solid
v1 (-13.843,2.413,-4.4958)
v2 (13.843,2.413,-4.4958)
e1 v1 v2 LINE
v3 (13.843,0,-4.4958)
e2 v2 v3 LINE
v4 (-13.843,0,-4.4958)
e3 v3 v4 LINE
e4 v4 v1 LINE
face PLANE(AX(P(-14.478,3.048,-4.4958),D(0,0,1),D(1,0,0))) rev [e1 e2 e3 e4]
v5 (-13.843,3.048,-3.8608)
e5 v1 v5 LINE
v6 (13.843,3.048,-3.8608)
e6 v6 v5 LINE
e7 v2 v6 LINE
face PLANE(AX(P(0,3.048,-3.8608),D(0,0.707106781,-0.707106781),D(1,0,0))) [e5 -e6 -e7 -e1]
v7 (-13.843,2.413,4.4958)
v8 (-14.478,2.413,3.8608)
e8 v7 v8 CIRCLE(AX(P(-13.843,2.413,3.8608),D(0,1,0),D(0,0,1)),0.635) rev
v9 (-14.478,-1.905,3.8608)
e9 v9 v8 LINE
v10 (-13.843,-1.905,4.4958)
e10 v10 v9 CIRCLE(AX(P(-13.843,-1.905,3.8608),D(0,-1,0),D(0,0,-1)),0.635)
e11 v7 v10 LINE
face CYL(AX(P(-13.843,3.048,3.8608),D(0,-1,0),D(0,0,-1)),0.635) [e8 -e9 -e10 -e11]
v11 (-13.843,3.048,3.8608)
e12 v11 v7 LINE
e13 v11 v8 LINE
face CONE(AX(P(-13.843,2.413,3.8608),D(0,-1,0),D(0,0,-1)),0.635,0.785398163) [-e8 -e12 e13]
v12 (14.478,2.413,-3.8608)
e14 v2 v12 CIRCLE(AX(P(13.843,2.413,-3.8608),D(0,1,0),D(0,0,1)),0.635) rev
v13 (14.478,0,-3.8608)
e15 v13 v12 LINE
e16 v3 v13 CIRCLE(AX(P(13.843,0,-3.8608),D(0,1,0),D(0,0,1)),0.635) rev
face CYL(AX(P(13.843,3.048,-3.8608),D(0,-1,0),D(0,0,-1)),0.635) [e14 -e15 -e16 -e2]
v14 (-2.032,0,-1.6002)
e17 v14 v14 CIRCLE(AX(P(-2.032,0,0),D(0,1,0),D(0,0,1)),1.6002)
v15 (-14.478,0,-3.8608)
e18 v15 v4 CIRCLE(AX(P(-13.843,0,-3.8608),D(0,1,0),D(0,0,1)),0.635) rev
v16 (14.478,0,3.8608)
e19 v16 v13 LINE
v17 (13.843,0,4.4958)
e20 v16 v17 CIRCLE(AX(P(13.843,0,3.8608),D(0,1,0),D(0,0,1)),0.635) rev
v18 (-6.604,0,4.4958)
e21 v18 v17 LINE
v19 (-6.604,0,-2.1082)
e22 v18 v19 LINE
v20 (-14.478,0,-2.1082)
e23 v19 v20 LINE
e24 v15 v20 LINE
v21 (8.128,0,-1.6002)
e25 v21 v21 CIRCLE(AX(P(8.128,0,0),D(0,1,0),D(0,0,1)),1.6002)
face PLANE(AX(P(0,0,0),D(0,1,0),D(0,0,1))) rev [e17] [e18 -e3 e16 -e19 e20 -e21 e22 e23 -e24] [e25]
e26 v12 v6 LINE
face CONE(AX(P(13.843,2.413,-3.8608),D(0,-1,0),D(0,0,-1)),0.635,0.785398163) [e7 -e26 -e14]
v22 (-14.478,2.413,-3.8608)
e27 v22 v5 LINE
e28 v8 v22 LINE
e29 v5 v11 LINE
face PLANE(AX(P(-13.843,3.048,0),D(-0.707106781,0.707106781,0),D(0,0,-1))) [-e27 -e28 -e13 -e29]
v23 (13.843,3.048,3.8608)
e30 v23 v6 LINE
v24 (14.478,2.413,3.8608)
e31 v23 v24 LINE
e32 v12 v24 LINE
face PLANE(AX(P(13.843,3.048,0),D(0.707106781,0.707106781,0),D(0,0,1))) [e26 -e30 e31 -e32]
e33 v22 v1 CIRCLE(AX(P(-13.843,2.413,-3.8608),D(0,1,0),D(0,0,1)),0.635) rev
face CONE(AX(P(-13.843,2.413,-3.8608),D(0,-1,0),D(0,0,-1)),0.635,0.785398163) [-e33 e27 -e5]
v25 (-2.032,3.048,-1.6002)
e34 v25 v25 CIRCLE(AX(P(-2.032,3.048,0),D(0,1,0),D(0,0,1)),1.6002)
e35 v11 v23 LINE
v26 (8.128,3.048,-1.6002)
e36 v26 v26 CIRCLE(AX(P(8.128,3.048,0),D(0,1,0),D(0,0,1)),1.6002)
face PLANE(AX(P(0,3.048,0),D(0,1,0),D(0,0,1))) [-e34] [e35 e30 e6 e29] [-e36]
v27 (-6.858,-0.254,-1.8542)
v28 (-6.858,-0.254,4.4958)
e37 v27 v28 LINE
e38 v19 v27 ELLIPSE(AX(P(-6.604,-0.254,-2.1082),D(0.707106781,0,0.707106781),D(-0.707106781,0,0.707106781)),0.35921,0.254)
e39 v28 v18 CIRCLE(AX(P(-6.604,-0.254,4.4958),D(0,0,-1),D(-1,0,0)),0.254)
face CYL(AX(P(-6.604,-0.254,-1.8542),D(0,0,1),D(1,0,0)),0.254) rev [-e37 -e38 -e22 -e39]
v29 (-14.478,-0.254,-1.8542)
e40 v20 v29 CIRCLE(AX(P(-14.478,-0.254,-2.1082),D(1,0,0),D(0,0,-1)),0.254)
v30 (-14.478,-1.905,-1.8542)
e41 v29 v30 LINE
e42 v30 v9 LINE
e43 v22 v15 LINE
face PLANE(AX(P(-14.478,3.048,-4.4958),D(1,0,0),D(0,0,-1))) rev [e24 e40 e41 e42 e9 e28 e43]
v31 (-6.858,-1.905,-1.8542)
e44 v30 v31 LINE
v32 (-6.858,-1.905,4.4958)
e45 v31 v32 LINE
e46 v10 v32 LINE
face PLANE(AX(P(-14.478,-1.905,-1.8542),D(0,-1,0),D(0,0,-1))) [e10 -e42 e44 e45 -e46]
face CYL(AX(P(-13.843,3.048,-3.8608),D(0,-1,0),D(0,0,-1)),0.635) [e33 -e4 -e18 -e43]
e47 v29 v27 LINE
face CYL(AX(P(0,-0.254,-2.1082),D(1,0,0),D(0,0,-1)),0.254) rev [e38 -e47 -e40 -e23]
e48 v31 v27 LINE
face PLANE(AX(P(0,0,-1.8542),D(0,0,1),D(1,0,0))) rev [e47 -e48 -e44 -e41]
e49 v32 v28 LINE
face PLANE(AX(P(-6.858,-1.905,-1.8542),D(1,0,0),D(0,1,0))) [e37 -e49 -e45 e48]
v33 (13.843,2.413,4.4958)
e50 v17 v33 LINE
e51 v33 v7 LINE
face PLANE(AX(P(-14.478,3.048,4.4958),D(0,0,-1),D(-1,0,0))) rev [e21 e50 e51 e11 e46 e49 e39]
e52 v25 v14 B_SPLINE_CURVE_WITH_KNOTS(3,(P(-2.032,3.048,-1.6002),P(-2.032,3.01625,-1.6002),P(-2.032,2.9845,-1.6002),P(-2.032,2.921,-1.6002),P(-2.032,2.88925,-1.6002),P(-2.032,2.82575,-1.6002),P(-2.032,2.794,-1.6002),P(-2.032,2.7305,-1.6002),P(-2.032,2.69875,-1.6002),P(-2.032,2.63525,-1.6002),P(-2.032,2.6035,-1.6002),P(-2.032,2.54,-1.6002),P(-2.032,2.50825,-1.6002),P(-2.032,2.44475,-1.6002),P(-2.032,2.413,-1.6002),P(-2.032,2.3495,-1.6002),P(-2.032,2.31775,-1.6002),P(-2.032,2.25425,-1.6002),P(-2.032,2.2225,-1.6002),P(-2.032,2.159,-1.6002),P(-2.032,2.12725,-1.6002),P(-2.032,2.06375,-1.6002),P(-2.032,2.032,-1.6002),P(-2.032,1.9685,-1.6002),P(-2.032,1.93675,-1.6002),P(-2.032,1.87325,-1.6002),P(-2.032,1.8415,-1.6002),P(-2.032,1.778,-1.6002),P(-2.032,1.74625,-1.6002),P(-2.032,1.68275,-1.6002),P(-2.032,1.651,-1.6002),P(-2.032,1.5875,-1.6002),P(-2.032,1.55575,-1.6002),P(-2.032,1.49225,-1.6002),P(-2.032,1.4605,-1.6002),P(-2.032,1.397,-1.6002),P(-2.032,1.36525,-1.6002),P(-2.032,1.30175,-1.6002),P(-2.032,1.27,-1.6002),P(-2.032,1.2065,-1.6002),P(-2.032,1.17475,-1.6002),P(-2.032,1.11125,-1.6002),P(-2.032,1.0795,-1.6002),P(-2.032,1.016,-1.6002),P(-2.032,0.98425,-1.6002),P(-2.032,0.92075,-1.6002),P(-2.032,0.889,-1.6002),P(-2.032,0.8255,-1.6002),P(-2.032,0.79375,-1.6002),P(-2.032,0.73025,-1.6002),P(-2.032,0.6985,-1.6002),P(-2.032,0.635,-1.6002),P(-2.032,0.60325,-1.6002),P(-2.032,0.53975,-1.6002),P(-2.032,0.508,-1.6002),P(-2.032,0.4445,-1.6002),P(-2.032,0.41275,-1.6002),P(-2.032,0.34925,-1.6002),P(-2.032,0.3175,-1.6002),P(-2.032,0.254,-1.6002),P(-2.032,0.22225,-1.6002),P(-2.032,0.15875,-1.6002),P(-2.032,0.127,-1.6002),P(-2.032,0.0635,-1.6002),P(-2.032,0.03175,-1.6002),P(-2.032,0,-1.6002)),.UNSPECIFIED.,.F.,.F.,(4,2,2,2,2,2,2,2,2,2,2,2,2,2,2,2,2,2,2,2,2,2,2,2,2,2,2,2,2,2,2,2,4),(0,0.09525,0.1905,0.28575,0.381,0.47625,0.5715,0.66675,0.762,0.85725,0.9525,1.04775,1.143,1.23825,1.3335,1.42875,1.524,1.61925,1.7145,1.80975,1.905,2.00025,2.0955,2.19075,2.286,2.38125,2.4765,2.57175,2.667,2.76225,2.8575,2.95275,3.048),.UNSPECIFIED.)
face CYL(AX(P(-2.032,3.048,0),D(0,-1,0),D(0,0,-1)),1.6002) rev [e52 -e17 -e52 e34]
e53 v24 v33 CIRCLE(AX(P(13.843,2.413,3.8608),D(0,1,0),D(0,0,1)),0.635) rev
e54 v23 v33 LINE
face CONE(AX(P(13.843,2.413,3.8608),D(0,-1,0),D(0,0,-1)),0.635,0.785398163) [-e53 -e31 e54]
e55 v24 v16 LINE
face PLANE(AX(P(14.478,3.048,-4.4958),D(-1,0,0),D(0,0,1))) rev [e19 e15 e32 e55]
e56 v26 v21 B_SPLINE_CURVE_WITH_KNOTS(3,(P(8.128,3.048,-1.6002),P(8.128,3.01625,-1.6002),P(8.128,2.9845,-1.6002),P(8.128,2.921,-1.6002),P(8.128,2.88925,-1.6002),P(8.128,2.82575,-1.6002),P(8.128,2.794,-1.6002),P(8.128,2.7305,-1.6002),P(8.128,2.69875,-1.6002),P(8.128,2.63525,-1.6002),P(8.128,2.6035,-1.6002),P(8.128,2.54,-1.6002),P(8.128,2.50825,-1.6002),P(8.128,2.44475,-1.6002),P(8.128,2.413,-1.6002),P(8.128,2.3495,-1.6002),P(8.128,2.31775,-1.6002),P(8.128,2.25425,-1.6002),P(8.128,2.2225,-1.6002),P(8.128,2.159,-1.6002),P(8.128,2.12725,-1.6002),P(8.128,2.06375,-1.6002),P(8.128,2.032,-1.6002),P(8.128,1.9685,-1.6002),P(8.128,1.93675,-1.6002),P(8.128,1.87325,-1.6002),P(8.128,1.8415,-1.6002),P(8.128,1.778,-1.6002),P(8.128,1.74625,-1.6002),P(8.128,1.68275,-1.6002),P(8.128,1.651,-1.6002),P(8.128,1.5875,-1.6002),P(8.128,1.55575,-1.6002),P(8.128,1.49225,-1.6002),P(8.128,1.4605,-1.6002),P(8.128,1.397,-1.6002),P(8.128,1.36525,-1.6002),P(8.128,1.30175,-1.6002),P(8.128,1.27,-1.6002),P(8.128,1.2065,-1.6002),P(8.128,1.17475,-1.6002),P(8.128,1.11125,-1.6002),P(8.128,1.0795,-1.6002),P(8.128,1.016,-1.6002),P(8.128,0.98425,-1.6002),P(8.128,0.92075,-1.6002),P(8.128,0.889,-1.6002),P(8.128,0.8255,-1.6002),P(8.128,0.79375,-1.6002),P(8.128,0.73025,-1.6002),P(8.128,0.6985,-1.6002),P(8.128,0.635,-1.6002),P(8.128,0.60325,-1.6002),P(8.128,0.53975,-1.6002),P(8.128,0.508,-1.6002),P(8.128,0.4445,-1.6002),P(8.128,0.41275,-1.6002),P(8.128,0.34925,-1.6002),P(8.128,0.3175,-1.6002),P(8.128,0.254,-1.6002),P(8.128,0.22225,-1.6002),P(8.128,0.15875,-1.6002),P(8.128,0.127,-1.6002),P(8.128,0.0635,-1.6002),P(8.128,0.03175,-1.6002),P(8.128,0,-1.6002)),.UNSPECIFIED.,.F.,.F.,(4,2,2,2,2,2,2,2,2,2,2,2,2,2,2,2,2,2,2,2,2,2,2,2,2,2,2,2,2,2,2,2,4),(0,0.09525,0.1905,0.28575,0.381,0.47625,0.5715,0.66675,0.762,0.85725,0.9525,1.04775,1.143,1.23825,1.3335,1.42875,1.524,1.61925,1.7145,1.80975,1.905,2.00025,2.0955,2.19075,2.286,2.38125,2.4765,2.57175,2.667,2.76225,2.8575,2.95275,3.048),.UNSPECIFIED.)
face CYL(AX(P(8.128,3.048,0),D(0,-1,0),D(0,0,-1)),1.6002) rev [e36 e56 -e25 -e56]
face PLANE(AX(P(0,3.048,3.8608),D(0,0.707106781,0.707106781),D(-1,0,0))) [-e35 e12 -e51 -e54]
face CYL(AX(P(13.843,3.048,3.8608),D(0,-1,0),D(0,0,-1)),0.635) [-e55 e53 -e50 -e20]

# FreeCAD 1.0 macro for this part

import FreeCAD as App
import Part
import Sketcher
from FreeCAD import Vector
Q = App.Units.Quantity


def edges_at(feature, points):
    """Names of the edges that pass closest to the given points."""
    edges = feature.Shape.Edges
    near = lambda p: min(range(len(edges)), key=lambda i: edges[i].distToShape(Part.Vertex(*p))[0])
    return sorted({f"Edge{near(p) + 1}" for p in points})

doc = App.newDocument("Part")
params = doc.addObject("Spreadsheet::Sheet", "Params")
for row, (alias, value) in enumerate([
    ("sketch1_diameter", "0.126 in"),
    ("sketch1_width", "1.14 in"),
    ("sketch1_height", "0.354 in"),
    ("pad1_length", "0.12 in"),
    ("sketch2_width", "0.3 in"),
    ("sketch2_height", "0.075 in"),
    ("pad2_length", "0.25 in"),
    ("fillet_radius", "0.01 in"),
    ("fillet2_radius", "0.025 in"),
    ("chamfer_size", "0.025 in"),
], start=1):
    params.set(f"A{row}", alias)
    params.set(f"B{row}", "=" + value)
    params.setAlias(f"B{row}", alias)

body = doc.addObject("PartDesign::Body", "Body")

# Sketch on XZ plane
sketch1 = doc.addObject("Sketcher::SketchObject", "Sketch")
body.addObject(sketch1)
sketch1.AttachmentSupport = (doc.XZ_Plane, [""])
sketch1.MapMode = "FlatFace"
sketch1.addGeometry(Part.LineSegment(Vector(-14.5, -4.5, 0), Vector(-14.5, 4.5, 0)), False)
sketch1.addGeometry(Part.LineSegment(Vector(-14.5, 4.5, 0), Vector(14.5, 4.5, 0)), False)
sketch1.addGeometry(Part.LineSegment(Vector(14.5, 4.5, 0), Vector(14.5, -4.5, 0)), False)
sketch1.addGeometry(Part.LineSegment(Vector(14.5, -4.5, 0), Vector(-14.5, -4.5, 0)), False)
sketch1.addGeometry(Part.Circle(Vector(-2, 0, 0), Vector(0, 0, 1), 1.6), False)
sketch1.addGeometry(Part.Circle(Vector(8.1, 0, 0), Vector(0, 0, 1), 1.6), False)
sketch1.addConstraint(Sketcher.Constraint("Coincident", 0, 2, 1, 1))
sketch1.addConstraint(Sketcher.Constraint("Coincident", 1, 2, 2, 1))
sketch1.addConstraint(Sketcher.Constraint("Coincident", 2, 2, 3, 1))
sketch1.addConstraint(Sketcher.Constraint("Coincident", 3, 2, 0, 1))
sketch1.addConstraint(Sketcher.Constraint("Vertical", 0))
sketch1.addConstraint(Sketcher.Constraint("Horizontal", 1))
sketch1.addConstraint(Sketcher.Constraint("Vertical", 2))
sketch1.addConstraint(Sketcher.Constraint("Horizontal", 3))
sketch1.addConstraint(Sketcher.Constraint("Equal", 4, 5))
sketch1.addConstraint(Sketcher.Constraint("Symmetric", 0, 2, 2, 2, -1, 1))
sketch1.addConstraint(Sketcher.Constraint("PointOnObject", 4, 3, -1))
sketch1.addConstraint(Sketcher.Constraint("PointOnObject", 5, 3, -1))
sketch1.addConstraint(Sketcher.Constraint("Diameter", 4, Q("0.126 in")))
sketch1.addConstraint(Sketcher.Constraint("DistanceX", 1, 1, 1, 2, Q("1.14 in")))
sketch1.addConstraint(Sketcher.Constraint("DistanceX", 4, 3, 5, 3, Q("0.4 in")))
sketch1.addConstraint(Sketcher.Constraint("DistanceY", 0, 1, 0, 2, Q("0.354 in")))
sketch1.addConstraint(Sketcher.Constraint("DistanceX", 4, 3, -1, 1, Q("0.08 in")))
sketch1.setExpression("Constraints[12]", "Params.sketch1_diameter")
sketch1.setExpression("Constraints[13]", "Params.sketch1_width")
sketch1.setExpression("Constraints[15]", "Params.sketch1_height")
pad1 = doc.addObject("PartDesign::Pad", "Pad")
body.addObject(pad1)
pad1.Profile = sketch1
pad1.setExpression("Length", "Params.pad1_length")
pad1.Reversed = True

# Sketch on XY plane
sketch2 = doc.addObject("Sketcher::SketchObject", "Sketch001")
body.addObject(sketch2)
sketch2.AttachmentSupport = (doc.XY_Plane, [""])
sketch2.MapMode = "FlatFace"
sketch2.AttachmentOffset = App.Placement(Vector(0, 0, 0.177 * 25.4), App.Rotation())
sketch2.addGeometry(Part.LineSegment(Vector(-14.5, 0, 0), Vector(-14.5, -1.9, 0)), False)
sketch2.addGeometry(Part.LineSegment(Vector(-14.5, -1.9, 0), Vector(-6.9, -1.9, 0)), False)
sketch2.addGeometry(Part.LineSegment(Vector(-6.9, -1.9, 0), Vector(-6.9, 0, 0)), False)
sketch2.addGeometry(Part.LineSegment(Vector(-6.9, 0, 0), Vector(-14.5, 0, 0)), False)
sketch2.addConstraint(Sketcher.Constraint("Coincident", 0, 2, 1, 1))
sketch2.addConstraint(Sketcher.Constraint("Coincident", 1, 2, 2, 1))
sketch2.addConstraint(Sketcher.Constraint("Coincident", 2, 2, 3, 1))
sketch2.addConstraint(Sketcher.Constraint("Coincident", 3, 2, 0, 1))
sketch2.addConstraint(Sketcher.Constraint("Vertical", 0))
sketch2.addConstraint(Sketcher.Constraint("Horizontal", 1))
sketch2.addConstraint(Sketcher.Constraint("Vertical", 2))
sketch2.addConstraint(Sketcher.Constraint("Horizontal", 3))
sketch2.addConstraint(Sketcher.Constraint("PointOnObject", 2, 2, -1))
sketch2.addConstraint(Sketcher.Constraint("DistanceX", 1, 1, 1, 2, Q("0.3 in")))
sketch2.addConstraint(Sketcher.Constraint("DistanceY", 0, 2, 0, 1, Q("0.075 in")))
sketch2.addConstraint(Sketcher.Constraint("DistanceX", 0, 2, -1, 1, Q("0.57 in")))
sketch2.setExpression("Constraints[9]", "Params.sketch2_width")
sketch2.setExpression("Constraints[10]", "Params.sketch2_height")
pad2 = doc.addObject("PartDesign::Pad", "Pad001")
body.addObject(pad2)
pad2.Profile = sketch2
pad2.setExpression("Length", "Params.pad2_length")
pad2.Reversed = True
doc.recompute()

fillet = doc.addObject("PartDesign::Fillet", "Fillet")
body.addObject(fillet)
fillet.Base = (pad2, edges_at(pad2, [(-10.668, 0, -1.854), (-6.858, 0, 1.321)]))
fillet.setExpression("Radius", "Params.fillet_radius")
doc.recompute()

fillet2 = doc.addObject("PartDesign::Fillet", "Fillet001")
body.addObject(fillet2)
fillet2.Base = (fillet, edges_at(fillet, [
    (14.478, 1.524, 4.496),
    (-14.478, 0.572, 4.496),
    (-14.478, 1.524, -4.496),
    (14.478, 1.524, -4.496),
]))
fillet2.setExpression("Radius", "Params.fillet2_radius")
doc.recompute()

chamfer = doc.addObject("PartDesign::Chamfer", "Chamfer")
body.addObject(chamfer)
chamfer.Base = (fillet2, edges_at(fillet2, [
    (0, 3.048, -4.496),
    (14.478, 3.048, 0),
    (-14.478, 3.048, 0),
    (0, 3.048, 4.496),
    (-14.292, 3.048, -4.31),
    (-14.292, 3.048, 4.31),
    (14.292, 3.048, 4.31),
    (14.292, 3.048, -4.31),
]))
chamfer.setExpression("Size", "Params.chamfer_size")

doc.recompute()
